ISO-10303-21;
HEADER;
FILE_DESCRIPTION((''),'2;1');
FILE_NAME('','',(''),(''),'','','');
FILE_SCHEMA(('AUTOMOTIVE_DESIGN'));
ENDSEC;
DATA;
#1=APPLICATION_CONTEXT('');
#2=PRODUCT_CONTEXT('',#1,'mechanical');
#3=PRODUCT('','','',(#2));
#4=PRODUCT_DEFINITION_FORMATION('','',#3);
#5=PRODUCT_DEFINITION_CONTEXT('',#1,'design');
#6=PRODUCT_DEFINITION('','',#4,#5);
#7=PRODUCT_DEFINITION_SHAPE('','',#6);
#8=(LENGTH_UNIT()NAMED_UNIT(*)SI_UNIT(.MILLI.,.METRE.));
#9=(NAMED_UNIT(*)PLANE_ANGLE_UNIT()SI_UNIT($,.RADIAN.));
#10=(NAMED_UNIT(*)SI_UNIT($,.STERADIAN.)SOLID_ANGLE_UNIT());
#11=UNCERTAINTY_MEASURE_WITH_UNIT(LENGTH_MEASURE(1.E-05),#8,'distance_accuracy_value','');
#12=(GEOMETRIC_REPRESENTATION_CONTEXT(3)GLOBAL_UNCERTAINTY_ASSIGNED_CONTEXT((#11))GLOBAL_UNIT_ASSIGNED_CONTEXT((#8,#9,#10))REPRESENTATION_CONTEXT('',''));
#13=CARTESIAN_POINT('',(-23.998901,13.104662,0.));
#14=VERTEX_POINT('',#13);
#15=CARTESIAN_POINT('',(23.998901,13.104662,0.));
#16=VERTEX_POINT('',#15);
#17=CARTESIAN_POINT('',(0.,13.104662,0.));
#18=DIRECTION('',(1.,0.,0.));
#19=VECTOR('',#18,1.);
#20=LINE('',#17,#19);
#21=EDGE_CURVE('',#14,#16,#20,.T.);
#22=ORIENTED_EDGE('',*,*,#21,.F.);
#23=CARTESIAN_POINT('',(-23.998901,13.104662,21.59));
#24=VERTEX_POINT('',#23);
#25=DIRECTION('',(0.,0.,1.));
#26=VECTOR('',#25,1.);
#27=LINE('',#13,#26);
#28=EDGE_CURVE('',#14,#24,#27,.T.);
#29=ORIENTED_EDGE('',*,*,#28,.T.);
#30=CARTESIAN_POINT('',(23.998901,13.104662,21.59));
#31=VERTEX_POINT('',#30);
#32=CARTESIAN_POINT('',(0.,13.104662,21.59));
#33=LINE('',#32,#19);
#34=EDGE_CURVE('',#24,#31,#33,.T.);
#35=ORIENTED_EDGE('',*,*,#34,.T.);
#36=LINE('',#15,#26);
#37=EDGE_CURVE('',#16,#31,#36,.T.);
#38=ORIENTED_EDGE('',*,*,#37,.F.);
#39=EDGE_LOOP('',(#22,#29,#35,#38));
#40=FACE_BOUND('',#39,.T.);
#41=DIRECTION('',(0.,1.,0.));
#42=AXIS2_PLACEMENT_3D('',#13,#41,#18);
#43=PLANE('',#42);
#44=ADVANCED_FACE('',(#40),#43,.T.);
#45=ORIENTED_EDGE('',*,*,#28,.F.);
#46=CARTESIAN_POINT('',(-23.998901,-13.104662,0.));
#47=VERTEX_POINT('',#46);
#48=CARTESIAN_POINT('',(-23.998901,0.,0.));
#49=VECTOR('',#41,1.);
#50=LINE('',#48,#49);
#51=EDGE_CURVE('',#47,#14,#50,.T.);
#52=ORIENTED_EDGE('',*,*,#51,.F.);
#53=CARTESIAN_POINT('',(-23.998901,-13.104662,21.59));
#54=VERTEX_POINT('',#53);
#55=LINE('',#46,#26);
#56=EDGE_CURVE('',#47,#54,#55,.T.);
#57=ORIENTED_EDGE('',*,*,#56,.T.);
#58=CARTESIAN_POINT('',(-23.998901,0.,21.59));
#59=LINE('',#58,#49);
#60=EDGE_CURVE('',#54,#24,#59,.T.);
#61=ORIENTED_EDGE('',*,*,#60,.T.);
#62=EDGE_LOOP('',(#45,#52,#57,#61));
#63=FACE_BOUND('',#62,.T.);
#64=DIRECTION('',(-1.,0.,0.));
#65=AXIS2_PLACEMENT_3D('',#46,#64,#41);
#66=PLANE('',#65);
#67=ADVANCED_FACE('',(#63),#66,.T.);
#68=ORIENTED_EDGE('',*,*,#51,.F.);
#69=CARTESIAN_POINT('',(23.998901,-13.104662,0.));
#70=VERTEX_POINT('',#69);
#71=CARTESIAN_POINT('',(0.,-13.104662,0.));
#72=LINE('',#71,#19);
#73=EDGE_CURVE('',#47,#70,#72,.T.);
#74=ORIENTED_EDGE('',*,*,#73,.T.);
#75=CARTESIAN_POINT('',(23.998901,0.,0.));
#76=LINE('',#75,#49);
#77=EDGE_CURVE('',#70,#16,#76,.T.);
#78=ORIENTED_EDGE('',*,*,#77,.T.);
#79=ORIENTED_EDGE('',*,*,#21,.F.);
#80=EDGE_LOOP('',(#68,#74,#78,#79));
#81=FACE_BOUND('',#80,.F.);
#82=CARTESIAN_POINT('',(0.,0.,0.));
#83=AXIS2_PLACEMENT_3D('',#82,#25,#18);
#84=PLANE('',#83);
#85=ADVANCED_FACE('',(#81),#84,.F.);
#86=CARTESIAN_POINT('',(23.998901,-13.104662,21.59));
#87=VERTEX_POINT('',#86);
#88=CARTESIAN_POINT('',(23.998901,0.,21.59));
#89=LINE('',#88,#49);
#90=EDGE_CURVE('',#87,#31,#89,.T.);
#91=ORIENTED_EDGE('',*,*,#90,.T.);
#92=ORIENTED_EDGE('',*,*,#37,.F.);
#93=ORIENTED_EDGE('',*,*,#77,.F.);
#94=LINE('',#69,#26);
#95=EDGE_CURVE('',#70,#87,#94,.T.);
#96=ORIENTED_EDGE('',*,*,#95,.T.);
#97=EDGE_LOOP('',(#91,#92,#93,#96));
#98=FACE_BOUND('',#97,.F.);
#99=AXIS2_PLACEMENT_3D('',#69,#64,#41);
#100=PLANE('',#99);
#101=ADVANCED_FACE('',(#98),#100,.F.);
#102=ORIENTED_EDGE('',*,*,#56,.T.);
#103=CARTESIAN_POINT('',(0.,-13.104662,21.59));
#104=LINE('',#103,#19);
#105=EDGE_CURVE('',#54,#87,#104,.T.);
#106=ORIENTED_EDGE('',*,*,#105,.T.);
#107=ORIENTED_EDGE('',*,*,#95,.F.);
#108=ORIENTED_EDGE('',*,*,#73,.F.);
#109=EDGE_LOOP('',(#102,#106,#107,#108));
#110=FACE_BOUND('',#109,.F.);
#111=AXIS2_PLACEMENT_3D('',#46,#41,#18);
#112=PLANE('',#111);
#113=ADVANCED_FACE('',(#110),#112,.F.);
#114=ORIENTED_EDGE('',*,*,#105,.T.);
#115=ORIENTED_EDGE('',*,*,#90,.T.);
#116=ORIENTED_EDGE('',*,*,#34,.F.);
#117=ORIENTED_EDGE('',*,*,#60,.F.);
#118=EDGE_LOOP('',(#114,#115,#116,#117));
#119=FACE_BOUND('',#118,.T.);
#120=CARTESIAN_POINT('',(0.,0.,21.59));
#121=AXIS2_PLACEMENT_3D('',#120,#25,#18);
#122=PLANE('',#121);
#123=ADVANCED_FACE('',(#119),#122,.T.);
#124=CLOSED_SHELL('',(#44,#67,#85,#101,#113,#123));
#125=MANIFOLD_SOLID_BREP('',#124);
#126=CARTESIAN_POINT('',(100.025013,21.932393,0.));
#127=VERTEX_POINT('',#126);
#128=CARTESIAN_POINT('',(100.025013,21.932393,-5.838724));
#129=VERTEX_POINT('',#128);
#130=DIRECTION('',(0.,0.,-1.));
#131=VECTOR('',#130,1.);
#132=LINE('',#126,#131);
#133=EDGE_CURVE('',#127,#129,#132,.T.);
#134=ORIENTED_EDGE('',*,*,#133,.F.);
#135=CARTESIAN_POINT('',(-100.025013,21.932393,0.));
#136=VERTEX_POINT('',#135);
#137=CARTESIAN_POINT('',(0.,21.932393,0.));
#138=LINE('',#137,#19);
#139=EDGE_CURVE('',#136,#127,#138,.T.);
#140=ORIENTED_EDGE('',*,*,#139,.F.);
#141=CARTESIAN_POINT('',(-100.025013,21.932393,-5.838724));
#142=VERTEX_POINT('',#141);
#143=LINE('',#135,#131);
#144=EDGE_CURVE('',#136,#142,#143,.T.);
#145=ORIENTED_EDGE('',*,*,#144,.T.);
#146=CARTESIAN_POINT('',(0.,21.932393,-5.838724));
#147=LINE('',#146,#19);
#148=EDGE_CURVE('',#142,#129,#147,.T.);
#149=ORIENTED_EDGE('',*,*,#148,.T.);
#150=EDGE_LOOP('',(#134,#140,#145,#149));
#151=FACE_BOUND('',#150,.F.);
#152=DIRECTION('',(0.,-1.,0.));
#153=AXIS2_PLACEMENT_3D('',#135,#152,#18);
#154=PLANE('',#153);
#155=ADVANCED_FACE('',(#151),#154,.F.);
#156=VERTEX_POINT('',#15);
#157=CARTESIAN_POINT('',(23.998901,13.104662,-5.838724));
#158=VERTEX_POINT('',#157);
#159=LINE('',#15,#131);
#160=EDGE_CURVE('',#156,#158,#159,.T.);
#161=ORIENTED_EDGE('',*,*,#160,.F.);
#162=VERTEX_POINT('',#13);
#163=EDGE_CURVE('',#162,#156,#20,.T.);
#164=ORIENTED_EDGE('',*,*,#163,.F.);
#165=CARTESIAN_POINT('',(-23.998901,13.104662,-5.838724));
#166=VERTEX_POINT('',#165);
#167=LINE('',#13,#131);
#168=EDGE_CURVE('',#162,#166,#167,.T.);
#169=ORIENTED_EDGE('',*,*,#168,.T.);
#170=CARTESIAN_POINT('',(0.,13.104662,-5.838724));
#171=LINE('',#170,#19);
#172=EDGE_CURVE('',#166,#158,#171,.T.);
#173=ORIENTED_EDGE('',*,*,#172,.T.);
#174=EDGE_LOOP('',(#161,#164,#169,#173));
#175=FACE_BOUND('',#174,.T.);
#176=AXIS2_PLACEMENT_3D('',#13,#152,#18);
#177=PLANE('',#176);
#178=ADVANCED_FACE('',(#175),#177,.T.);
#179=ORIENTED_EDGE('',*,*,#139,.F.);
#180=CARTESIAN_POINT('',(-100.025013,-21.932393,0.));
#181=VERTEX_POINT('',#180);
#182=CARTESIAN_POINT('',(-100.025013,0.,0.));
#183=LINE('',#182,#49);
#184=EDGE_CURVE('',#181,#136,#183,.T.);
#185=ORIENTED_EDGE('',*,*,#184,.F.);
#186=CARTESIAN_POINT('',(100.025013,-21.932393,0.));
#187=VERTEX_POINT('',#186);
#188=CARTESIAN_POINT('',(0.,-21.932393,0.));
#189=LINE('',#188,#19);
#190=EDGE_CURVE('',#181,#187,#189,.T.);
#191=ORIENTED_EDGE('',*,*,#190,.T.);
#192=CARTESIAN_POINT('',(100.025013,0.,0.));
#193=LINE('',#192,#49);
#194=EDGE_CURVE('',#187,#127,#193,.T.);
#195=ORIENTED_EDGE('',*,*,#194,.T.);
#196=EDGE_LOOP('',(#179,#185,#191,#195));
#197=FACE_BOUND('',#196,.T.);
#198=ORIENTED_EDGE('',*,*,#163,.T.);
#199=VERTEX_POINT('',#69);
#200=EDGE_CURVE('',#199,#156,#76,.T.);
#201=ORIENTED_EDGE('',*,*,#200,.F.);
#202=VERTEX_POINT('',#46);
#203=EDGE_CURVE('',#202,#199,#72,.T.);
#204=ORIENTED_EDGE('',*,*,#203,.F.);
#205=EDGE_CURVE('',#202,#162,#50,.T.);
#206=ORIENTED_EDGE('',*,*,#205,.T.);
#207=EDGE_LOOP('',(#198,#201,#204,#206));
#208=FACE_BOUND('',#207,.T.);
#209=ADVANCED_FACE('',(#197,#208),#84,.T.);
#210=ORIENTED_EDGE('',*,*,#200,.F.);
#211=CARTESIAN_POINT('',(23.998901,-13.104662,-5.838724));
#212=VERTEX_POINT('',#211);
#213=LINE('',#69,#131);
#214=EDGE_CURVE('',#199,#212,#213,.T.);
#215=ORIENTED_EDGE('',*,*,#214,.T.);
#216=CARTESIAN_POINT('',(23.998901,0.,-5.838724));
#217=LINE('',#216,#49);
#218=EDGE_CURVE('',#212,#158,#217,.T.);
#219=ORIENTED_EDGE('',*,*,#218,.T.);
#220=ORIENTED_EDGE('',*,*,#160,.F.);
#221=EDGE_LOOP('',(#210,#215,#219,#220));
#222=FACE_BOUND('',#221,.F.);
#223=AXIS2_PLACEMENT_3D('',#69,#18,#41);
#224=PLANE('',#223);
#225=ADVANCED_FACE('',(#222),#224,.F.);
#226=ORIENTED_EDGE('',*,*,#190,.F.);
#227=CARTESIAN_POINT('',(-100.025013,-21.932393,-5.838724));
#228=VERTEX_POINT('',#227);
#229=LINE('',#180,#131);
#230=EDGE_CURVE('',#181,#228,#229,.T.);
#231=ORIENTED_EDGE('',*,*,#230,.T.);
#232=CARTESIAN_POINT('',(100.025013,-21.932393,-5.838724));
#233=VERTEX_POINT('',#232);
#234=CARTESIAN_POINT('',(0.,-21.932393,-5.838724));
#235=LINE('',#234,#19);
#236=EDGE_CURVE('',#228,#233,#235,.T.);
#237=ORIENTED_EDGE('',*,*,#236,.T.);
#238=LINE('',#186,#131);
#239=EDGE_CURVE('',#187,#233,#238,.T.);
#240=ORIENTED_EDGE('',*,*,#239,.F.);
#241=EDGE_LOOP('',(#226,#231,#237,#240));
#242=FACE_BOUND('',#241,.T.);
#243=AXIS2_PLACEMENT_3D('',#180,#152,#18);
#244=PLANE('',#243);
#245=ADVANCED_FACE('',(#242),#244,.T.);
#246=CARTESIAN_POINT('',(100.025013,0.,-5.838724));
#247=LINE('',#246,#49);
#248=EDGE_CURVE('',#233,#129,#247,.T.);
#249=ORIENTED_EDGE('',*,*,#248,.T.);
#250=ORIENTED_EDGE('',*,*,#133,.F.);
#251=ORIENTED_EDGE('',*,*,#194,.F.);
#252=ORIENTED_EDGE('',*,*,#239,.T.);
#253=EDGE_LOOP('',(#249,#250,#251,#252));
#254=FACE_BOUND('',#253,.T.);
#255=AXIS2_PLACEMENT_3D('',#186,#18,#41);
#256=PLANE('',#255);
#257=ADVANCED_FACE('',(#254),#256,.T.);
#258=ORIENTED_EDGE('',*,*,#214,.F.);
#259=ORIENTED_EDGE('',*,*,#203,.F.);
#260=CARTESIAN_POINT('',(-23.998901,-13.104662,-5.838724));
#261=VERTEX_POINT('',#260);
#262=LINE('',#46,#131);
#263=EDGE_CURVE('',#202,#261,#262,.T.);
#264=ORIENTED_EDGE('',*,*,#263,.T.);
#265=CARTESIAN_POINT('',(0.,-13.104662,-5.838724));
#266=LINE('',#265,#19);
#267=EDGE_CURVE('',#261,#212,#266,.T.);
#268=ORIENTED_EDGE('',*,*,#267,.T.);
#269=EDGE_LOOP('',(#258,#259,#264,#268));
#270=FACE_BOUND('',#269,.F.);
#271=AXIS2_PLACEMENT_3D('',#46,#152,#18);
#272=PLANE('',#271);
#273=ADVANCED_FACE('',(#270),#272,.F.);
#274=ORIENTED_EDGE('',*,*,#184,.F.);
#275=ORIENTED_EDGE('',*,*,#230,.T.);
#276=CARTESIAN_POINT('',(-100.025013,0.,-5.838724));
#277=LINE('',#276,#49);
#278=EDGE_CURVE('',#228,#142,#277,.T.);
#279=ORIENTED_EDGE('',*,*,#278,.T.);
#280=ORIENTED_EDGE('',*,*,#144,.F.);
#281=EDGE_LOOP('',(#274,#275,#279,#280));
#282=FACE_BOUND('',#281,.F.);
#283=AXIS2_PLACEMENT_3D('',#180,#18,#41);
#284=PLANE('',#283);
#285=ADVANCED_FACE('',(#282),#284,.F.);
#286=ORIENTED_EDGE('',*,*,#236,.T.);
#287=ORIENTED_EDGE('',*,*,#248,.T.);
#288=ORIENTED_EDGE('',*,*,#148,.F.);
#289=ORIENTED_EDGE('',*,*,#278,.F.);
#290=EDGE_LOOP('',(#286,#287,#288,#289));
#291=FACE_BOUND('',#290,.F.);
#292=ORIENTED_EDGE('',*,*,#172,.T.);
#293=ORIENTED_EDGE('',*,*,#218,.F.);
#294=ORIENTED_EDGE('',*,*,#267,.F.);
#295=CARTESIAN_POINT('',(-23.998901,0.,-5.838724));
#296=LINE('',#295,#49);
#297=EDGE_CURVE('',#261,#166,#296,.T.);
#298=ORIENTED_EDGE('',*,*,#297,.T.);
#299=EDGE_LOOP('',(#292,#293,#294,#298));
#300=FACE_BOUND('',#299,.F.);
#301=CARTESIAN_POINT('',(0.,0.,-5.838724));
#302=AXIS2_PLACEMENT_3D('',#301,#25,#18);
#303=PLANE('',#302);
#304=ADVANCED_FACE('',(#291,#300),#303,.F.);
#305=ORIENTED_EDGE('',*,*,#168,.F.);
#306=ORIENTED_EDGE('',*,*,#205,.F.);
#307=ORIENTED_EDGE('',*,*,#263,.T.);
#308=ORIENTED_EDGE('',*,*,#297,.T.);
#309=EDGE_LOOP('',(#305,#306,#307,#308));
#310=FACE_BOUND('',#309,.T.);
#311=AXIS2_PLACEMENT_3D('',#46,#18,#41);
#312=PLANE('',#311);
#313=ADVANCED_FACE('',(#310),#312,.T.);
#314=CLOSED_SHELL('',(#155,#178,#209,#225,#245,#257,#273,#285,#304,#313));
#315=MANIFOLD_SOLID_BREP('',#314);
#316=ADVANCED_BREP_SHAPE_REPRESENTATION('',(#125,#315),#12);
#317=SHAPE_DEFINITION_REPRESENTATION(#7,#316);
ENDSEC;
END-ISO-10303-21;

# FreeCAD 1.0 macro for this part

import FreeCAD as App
import Part
import Sketcher
from FreeCAD import Vector
Q = App.Units.Quantity


def add_polygon(sketch, points):
    """Adds a closed chain of lines whose ends are joined by coincident constraints."""
    first, n = sketch.GeometryCount, len(points)
    for a, b in zip(points, points[1:] + points[:1]):
        sketch.addGeometry(Part.LineSegment(App.Vector(*a, 0), App.Vector(*b, 0)), False)
    for i in range(n):
        sketch.addConstraint(Sketcher.Constraint("Coincident", first + i, 2, first + (i + 1) % n, 1))

doc = App.newDocument("Part")
body = doc.addObject("PartDesign::Body", "Body")

sketch1 = body.newObject("Sketcher::SketchObject", "Sketch")
sketch1.AttachmentSupport = (doc.getObject("XY_Plane"), [""])
sketch1.MapMode = "FlatFace"
add_polygon(sketch1, [(-24, 13), (-24, -13), (24, -13), (24, 13)])
sketch1.addConstraint(Sketcher.Constraint("Vertical", 0))
sketch1.addConstraint(Sketcher.Constraint("Horizontal", 1))
sketch1.addConstraint(Sketcher.Constraint("Vertical", 2))
sketch1.addConstraint(Sketcher.Constraint("Horizontal", 3))
sketch1.addConstraint(Sketcher.Constraint("Symmetric", 0, 2, 2, 2, -1, 1))
sketch1.addConstraint(Sketcher.Constraint("DistanceX", 0, 2, -1, 1, 23.998901))
sketch1.addConstraint(Sketcher.Constraint("DistanceY", 0, 2, 0, 1, 26.209324))
pad1 = body.newObject("PartDesign::Pad", "Pad")
pad1.Profile = sketch1
pad1.Length = Q("0.85 in")
body2 = doc.addObject("PartDesign::Body", "Body001")

sketch2 = body2.newObject("Sketcher::SketchObject", "Sketch001")
sketch2.AttachmentSupport = (doc.getObject("XY_Plane001"), [""])
sketch2.MapMode = "FlatFace"
add_polygon(sketch2, [(-100, 22), (-100, -22), (100, -22), (100, 22)])
add_polygon(sketch2, [(24, -13), (-24, -13), (-24, 13), (24, 13)])
sketch2.addConstraint(Sketcher.Constraint("Vertical", 0))
sketch2.addConstraint(Sketcher.Constraint("Horizontal", 1))
sketch2.addConstraint(Sketcher.Constraint("Vertical", 2))
sketch2.addConstraint(Sketcher.Constraint("Horizontal", 3))
sketch2.addConstraint(Sketcher.Constraint("Horizontal", 4))
sketch2.addConstraint(Sketcher.Constraint("Vertical", 5))
sketch2.addConstraint(Sketcher.Constraint("Horizontal", 6))
sketch2.addConstraint(Sketcher.Constraint("Vertical", 7))
sketch2.addConstraint(Sketcher.Constraint("Symmetric", 0, 2, 2, 2, -1, 1))
sketch2.addConstraint(Sketcher.Constraint("Symmetric", 4, 2, 6, 2, -1, 1))
sketch2.addConstraint(Sketcher.Constraint("DistanceX", 4, 2, -1, 1, 23.998901))
sketch2.addConstraint(Sketcher.Constraint("DistanceX", 1, 1, 1, 2, 200.050026))
sketch2.addConstraint(Sketcher.Constraint("DistanceY", 0, 2, 0, 1, 43.864786))
sketch2.addConstraint(Sketcher.Constraint("DistanceY", 5, 1, 5, 2, 26.209324))
pad2 = body2.newObject("PartDesign::Pad", "Pad001")
pad2.Profile = sketch2
pad2.Length = 5.838724
pad2.Reversed = True

doc.recompute()
